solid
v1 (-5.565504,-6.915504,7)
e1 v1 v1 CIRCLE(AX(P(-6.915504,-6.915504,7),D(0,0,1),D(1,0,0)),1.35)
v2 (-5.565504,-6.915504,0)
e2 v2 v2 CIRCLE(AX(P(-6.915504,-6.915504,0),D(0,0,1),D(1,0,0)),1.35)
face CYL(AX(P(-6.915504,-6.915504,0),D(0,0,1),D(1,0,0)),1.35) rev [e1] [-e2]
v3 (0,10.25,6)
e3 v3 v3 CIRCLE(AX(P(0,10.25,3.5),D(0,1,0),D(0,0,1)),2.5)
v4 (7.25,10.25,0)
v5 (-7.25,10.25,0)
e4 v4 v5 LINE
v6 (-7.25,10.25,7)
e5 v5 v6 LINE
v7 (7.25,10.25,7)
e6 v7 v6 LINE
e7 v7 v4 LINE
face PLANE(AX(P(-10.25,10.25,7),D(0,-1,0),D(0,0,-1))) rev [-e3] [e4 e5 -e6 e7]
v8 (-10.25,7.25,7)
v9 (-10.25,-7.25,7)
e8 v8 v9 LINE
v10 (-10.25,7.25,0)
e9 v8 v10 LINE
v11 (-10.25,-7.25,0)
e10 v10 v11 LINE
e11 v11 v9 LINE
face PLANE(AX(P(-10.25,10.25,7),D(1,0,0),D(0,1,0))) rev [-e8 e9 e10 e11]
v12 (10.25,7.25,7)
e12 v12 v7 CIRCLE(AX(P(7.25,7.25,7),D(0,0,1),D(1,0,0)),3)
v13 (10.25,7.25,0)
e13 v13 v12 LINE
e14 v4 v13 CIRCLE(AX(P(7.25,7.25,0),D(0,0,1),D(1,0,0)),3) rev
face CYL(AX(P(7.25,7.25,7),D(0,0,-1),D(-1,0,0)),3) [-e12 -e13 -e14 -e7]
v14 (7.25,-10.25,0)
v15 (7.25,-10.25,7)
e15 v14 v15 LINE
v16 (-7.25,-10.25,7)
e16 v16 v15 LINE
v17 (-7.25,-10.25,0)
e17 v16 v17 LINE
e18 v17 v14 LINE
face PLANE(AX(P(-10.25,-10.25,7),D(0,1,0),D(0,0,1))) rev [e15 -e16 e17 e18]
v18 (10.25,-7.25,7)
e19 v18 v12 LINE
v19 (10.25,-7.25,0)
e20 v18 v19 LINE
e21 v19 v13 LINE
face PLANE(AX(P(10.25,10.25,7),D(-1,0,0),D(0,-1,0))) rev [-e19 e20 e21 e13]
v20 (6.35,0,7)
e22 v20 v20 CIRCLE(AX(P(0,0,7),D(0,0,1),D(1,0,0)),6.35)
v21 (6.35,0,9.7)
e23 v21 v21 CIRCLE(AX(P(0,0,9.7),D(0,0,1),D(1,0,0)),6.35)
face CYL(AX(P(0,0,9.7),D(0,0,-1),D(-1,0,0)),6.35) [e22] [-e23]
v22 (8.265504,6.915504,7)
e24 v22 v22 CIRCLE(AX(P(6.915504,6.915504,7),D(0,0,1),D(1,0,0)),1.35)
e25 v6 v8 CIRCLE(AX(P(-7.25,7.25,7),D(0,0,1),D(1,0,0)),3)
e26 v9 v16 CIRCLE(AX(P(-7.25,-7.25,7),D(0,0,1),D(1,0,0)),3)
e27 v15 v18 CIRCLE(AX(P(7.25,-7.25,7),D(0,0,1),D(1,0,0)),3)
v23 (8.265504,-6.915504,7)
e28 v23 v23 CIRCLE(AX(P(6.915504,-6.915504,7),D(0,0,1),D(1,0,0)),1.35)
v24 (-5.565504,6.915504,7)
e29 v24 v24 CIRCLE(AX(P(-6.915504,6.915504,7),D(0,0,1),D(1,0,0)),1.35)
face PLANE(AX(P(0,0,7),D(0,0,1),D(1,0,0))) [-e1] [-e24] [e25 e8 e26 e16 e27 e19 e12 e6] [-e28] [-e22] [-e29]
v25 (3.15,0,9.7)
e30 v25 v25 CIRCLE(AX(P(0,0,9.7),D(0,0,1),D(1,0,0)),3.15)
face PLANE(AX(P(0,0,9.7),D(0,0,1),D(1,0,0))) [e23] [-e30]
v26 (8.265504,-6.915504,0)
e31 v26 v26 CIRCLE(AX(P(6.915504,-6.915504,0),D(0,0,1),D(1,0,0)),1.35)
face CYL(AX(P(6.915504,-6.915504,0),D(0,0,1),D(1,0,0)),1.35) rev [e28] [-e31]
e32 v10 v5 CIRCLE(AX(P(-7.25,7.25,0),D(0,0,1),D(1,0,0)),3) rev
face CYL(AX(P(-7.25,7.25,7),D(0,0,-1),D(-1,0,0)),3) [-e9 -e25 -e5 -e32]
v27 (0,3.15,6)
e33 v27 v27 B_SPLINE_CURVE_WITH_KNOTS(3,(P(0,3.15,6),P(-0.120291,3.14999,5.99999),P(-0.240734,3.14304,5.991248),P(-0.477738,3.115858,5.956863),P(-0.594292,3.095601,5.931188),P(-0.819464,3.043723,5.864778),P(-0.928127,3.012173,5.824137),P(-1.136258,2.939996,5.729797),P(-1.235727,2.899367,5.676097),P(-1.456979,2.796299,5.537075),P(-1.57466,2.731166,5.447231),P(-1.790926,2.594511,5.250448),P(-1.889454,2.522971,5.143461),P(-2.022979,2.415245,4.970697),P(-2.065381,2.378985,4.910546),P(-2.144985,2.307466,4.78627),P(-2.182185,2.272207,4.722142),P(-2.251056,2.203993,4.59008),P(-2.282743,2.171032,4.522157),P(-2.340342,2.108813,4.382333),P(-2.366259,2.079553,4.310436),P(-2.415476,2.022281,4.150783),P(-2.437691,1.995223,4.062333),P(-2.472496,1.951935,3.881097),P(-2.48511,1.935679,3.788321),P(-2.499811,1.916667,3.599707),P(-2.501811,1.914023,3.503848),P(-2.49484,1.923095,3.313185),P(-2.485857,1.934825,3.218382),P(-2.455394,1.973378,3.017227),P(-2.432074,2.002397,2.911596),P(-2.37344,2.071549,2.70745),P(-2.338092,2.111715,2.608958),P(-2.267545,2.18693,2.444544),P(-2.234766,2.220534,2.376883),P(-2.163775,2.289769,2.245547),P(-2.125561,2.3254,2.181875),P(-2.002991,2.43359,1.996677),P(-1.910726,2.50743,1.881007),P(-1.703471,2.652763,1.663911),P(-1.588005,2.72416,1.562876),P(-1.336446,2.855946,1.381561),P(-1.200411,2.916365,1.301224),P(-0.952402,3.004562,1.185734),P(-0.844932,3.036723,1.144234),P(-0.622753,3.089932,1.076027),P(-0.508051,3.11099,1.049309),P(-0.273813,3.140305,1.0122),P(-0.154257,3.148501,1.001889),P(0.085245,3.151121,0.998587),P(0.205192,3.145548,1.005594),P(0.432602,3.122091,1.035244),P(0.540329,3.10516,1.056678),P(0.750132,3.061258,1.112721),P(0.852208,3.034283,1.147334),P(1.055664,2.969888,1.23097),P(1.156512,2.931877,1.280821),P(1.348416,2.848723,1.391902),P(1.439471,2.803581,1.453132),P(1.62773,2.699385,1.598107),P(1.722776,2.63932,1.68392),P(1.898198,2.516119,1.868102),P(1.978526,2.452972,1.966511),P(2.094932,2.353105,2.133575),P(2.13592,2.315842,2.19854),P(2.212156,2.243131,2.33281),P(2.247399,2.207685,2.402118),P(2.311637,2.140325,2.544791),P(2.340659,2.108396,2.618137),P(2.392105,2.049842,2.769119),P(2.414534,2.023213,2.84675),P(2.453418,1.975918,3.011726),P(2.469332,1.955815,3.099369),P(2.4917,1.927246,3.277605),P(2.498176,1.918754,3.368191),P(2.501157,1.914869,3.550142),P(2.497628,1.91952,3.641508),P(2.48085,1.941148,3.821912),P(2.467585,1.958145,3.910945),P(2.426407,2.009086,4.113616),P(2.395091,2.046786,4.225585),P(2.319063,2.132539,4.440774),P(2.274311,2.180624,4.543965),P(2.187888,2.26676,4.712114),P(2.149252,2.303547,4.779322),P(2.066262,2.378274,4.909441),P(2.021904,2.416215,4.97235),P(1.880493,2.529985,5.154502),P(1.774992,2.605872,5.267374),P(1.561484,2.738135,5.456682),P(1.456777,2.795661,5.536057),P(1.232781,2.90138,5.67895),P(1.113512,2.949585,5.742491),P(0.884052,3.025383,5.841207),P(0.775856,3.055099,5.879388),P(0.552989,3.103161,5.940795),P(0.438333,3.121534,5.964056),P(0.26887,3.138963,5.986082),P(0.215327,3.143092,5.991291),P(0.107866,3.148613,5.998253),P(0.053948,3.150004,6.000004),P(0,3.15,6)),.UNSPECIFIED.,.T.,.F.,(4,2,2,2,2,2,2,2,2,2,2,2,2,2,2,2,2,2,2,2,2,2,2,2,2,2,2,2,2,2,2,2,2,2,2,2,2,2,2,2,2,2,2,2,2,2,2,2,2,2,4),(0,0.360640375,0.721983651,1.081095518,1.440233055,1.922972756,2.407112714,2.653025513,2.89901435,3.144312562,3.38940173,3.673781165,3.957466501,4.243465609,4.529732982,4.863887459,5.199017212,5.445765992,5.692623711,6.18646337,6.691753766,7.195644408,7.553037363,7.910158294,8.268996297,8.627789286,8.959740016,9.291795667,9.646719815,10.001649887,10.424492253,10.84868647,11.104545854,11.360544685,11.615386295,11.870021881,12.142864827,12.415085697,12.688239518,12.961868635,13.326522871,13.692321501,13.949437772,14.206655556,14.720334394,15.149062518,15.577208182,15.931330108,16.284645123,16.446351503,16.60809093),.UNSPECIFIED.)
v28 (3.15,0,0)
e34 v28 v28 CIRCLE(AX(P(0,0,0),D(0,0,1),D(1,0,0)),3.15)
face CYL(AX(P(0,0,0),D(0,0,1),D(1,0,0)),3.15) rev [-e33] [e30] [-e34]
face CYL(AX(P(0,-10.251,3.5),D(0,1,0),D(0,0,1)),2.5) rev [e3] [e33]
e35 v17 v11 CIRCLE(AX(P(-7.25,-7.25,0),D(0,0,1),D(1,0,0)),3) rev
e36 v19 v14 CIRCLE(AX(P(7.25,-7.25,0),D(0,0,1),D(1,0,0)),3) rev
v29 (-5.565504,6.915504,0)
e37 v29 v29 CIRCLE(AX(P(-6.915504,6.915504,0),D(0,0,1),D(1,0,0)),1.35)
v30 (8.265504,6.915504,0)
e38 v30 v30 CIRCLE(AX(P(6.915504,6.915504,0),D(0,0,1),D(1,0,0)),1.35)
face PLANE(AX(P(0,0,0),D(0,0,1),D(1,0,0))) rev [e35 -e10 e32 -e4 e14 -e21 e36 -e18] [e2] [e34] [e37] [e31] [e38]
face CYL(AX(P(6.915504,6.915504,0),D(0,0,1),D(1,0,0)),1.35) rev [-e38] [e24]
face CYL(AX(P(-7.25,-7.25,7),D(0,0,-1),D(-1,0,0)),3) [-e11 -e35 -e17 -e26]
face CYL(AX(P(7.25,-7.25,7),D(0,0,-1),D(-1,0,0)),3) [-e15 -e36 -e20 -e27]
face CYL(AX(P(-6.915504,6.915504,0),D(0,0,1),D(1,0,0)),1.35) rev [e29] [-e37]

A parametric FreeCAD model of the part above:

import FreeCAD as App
import Part
import Sketcher

V = App.Vector
Q = App.Units.Quantity


def edges_at(feature, points):
    """Names of the edges that pass closest to the given points."""
    edges = feature.Shape.Edges
    near = lambda p: min(range(len(edges)), key=lambda i: edges[i].distToShape(Part.Vertex(*p))[0])
    return sorted({f"Edge{near(p) + 1}" for p in points})

doc = App.newDocument("Part")
body = doc.addObject("PartDesign::Body", "Body")

# Sketch on XY plane
sketch1 = doc.addObject("Sketcher::SketchObject", "Sketch")
body.addObject(sketch1)
sketch1.AttachmentSupport = (doc.XY_Plane, [""])
sketch1.MapMode = "FlatFace"
sketch1.addGeometry(Part.LineSegment(V(-10, 10, 0), V(-10, -10, 0)), False)
sketch1.addGeometry(Part.LineSegment(V(-10, -10, 0), V(10, -10, 0)), False)
sketch1.addGeometry(Part.LineSegment(V(10, -10, 0), V(10, 10, 0)), False)
sketch1.addGeometry(Part.LineSegment(V(10, 10, 0), V(-10, 10, 0)), False)
sketch1.addConstraint(Sketcher.Constraint("Coincident", 0, 2, 1, 1))
sketch1.addConstraint(Sketcher.Constraint("Coincident", 1, 2, 2, 1))
sketch1.addConstraint(Sketcher.Constraint("Coincident", 2, 2, 3, 1))
sketch1.addConstraint(Sketcher.Constraint("Coincident", 3, 2, 0, 1))
sketch1.addConstraint(Sketcher.Constraint("Vertical", 0))
sketch1.addConstraint(Sketcher.Constraint("Horizontal", 1))
sketch1.addConstraint(Sketcher.Constraint("Vertical", 2))
sketch1.addConstraint(Sketcher.Constraint("Horizontal", 3))
sketch1.addConstraint(Sketcher.Constraint("Symmetric", 0, 2, 2, 2, -1, 1))
sketch1.addConstraint(Sketcher.Constraint("Equal", 3, 0))
sketch1.addConstraint(Sketcher.Constraint("DistanceX", 1, 1, 1, 2, Q("20.5 mm")))
pad1 = doc.addObject("PartDesign::Pad", "Pad")
body.addObject(pad1)
pad1.Profile = sketch1
pad1.Length = 7
doc.recompute()

fillet = doc.addObject("PartDesign::Fillet", "Fillet")
body.addObject(fillet)
fillet.Base = (pad1, edges_at(pad1, [
    (10.25, -10.25, 3.5),
    (-10.25, -10.25, 3.5),
    (-10.25, 10.25, 3.5),
    (10.25, 10.25, 3.5),
]))
fillet.Radius = 3

# Sketch on XY plane
sketch2 = doc.addObject("Sketcher::SketchObject", "Sketch001")
body.addObject(sketch2)
sketch2.AttachmentSupport = (doc.XY_Plane, [""])
sketch2.MapMode = "FlatFace"
sketch2.AttachmentOffset = App.Placement(V(0, 0, 7), App.Rotation())
sketch2.addGeometry(Part.Circle(V(0, 0, 0), V(0, 0, 1), 6), False)
sketch2.addConstraint(Sketcher.Constraint("Coincident", 0, 3, -1, 1))
sketch2.addConstraint(Sketcher.Constraint("Diameter", 0, Q("12.7 mm")))
pad2 = doc.addObject("PartDesign::Pad", "Pad001")
body.addObject(pad2)
pad2.Profile = sketch2
pad2.Length = 2.7

# Sketch on XY plane
sketch3 = doc.addObject("Sketcher::SketchObject", "Sketch002")
body.addObject(sketch3)
sketch3.AttachmentSupport = (doc.XY_Plane, [""])
sketch3.MapMode = "FlatFace"
sketch3.AttachmentOffset = App.Placement(V(0, 0, 9.7), App.Rotation())
sketch3.addGeometry(Part.Circle(V(0, 0, 0), V(0, 0, 1), 3.1), False)
sketch3.addConstraint(Sketcher.Constraint("Coincident", 0, 3, -1, 1))
sketch3.addConstraint(Sketcher.Constraint("Diameter", 0, Q("6.3 mm")))
pocket1 = doc.addObject("PartDesign::Pocket", "Pocket")
body.addObject(pocket1)
pocket1.Profile = sketch3
pocket1.Type = "ThroughAll"

# Sketch on XY plane
sketch4 = doc.addObject("Sketcher::SketchObject", "Sketch003")
body.addObject(sketch4)
sketch4.AttachmentSupport = (doc.XY_Plane, [""])
sketch4.MapMode = "FlatFace"
sketch4.AttachmentOffset = App.Placement(V(0, 0, 7), App.Rotation())
sketch4.addGeometry(Part.Circle(V(-6.9, 6.9, 0), V(0, 0, 1), 1.4), False)
sketch4.addGeometry(Part.Circle(V(6.9, 6.9, 0), V(0, 0, 1), 1.4), False)
sketch4.addGeometry(Part.Circle(V(6.9, -6.9, 0), V(0, 0, 1), 1.4), False)
sketch4.addGeometry(Part.Circle(V(-6.9, -6.9, 0), V(0, 0, 1), 1.4), False)
sketch4.addConstraint(Sketcher.Constraint("Equal", 0, 1))
sketch4.addConstraint(Sketcher.Constraint("Equal", 1, 2))
sketch4.addConstraint(Sketcher.Constraint("Equal", 2, 3))
sketch4.addConstraint(Sketcher.Constraint("Symmetric", 0, 3, 2, 3, -1, 1))
sketch4.addConstraint(Sketcher.Constraint("Symmetric", 1, 3, 3, 3, -1, 1))
sketch4.addConstraint(Sketcher.Constraint("Symmetric", 0, 3, 1, 3, -2))
sketch4.addConstraint(Sketcher.Constraint("Diameter", 0, Q("2.7 mm")))
sketch4.addConstraint(Sketcher.Constraint("DistanceX", 0, 3, 1, 3, Q("13.831009 mm")))
sketch4.addConstraint(Sketcher.Constraint("DistanceY", 2, 3, 1, 3, Q("13.831009 mm")))
pocket2 = doc.addObject("PartDesign::Pocket", "Pocket001")
body.addObject(pocket2)
pocket2.Profile = sketch4
pocket2.Type = "ThroughAll"

# Sketch on XZ plane
sketch5 = doc.addObject("Sketcher::SketchObject", "Sketch004")
body.addObject(sketch5)
sketch5.AttachmentSupport = (doc.XZ_Plane, [""])
sketch5.MapMode = "FlatFace"
sketch5.AttachmentOffset = App.Placement(V(0, 0, -10.25), App.Rotation())
sketch5.addGeometry(Part.Circle(V(0, 3.5, 0), V(0, 0, 1), 2.5), False)
sketch5.addConstraint(Sketcher.Constraint("PointOnObject", 0, 3, -2))
sketch5.addConstraint(Sketcher.Constraint("Diameter", 0, Q("5 mm")))
sketch5.addConstraint(Sketcher.Constraint("DistanceY", -1, 1, 0, 3, Q("3.5 mm")))
pocket3 = doc.addObject("PartDesign::Pocket", "Pocket002")
body.addObject(pocket3)
pocket3.Profile = sketch5
pocket3.Type = "UpToFirst"
pocket3.Reversed = True

doc.recompute()
